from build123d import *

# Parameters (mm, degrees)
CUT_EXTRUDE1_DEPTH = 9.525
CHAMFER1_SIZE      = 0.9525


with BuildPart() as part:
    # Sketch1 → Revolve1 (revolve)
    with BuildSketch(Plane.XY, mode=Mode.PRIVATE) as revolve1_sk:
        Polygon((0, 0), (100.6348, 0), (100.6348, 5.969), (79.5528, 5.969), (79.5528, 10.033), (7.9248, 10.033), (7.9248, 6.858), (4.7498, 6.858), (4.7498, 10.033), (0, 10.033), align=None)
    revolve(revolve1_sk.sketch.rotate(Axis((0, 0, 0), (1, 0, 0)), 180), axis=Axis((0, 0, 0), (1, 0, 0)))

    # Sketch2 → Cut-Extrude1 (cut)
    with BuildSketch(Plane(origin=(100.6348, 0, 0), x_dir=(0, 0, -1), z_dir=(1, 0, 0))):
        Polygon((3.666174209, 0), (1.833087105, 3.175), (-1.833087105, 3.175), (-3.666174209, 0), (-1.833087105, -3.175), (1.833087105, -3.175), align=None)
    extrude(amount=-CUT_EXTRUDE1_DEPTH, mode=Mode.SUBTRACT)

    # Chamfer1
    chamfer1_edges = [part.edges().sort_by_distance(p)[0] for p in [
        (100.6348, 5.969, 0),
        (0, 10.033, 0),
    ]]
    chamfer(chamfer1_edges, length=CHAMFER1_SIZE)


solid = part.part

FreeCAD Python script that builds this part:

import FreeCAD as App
import Part
import Sketcher
Q = App.Units.Quantity


def edges_at(feature, points):
    """Names of the edges that pass closest to the given points."""
    edges = feature.Shape.Edges
    near = lambda p: min(range(len(edges)), key=lambda i: edges[i].distToShape(Part.Vertex(*p))[0])
    return sorted({f"Edge{near(p) + 1}" for p in points})


def add_polygon(sketch, points):
    """Adds a closed chain of lines whose ends are joined by coincident constraints."""
    first, n = sketch.GeometryCount, len(points)
    for a, b in zip(points, points[1:] + points[:1]):
        sketch.addGeometry(Part.LineSegment(App.Vector(*a, 0), App.Vector(*b, 0)), False)
    for i in range(n):
        sketch.addConstraint(Sketcher.Constraint("Coincident", first + i, 2, first + (i + 1) % n, 1))

doc = App.newDocument("Part")
body = doc.addObject("PartDesign::Body", "Body")

sketch1 = body.newObject("Sketcher::SketchObject", "Sketch")
sketch1.AttachmentSupport = (doc.getObject("XY_Plane"), [""])
sketch1.MapMode = "FlatFace"
add_polygon(sketch1, [(0, 0), (100.6348, 0), (100.6348, 5.969), (79.5528, 5.969), (79.5528, 10.033), (7.9248, 10.033), (7.9248, 6.858), (4.7498, 6.858), (4.7498, 10.033), (0, 10.033)])
sketch1.addConstraint([
    Sketcher.Constraint("Horizontal", 0),
    Sketcher.Constraint("Vertical", 1),
    Sketcher.Constraint("Horizontal", 2),
    Sketcher.Constraint("Vertical", 3),
    Sketcher.Constraint("Horizontal", 4),
    Sketcher.Constraint("Vertical", 5),
    Sketcher.Constraint("Horizontal", 6),
    Sketcher.Constraint("Vertical", 7),
    Sketcher.Constraint("Horizontal", 8),
    Sketcher.Constraint("Vertical", 9),
    Sketcher.Constraint("Coincident", 9, 2, -1, 1),
    Sketcher.Constraint("Horizontal", 4, 2, 7, 2),
    Sketcher.Constraint("Equal", 6, 5),
    Sketcher.Constraint("DistanceX", 2, 2, 2, 1, Q("0.83 in")),
    Sketcher.Constraint("DistanceX", 4, 2, 4, 1, Q("2.82 in")),
    Sketcher.Constraint("DistanceY", 3, 1, 3, 2, Q("0.16 in")),
    Sketcher.Constraint("DistanceX", 0, 1, 0, 2, Q("3.962 in")),
    Sketcher.Constraint("DistanceX", 6, 2, 6, 1, Q("0.125 in")),
    Sketcher.Constraint("DistanceY", 1, 1, 1, 2, Q("0.235 in")),
])
revolution = body.newObject("PartDesign::Revolution", "Revolution")
revolution.Profile = sketch1
revolution.ReferenceAxis = (sketch1, ["H_Axis"])
revolution.Angle = 360

sketch2 = body.newObject("Sketcher::SketchObject", "Sketch001")
sketch2.AttachmentSupport = (doc.getObject("YZ_Plane"), [""])
sketch2.MapMode = "FlatFace"
sketch2.AttachmentOffset = App.Placement(App.Vector(0, 0, 3.962 * 25.4), App.Rotation())
add_polygon(sketch2, [(0, -3.666174), (3.175, -1.833087), (3.175, 1.833087), (0, 3.666174), (-3.175, 1.833087), (-3.175, -1.833087)])
sketch2.addConstraint([
    Sketcher.Constraint("Vertical", 1),
    Sketcher.Constraint("Vertical", 4),
    Sketcher.Constraint("Symmetric", 0, 2, 3, 2, -1, 1),
    Sketcher.Constraint("Symmetric", 2, 2, 5, 2, -1, 1),
    Sketcher.Constraint("PointOnObject", 2, 2, -2),
    Sketcher.Constraint("Parallel", 2, 5),
    Sketcher.Constraint("Horizontal", 1, 2, 3, 2),
    Sketcher.Constraint("Angle", 0, Q("30 deg")),
    Sketcher.Constraint("DistanceX", 3, 2, 1, 2, Q("0.25 in")),
    Sketcher.Constraint("DistanceY", 1, 1, 1, 2, Q("3.666174 mm")),
])
pocket1 = body.newObject("PartDesign::Pocket", "Pocket")
pocket1.Profile = sketch2
pocket1.Length = Q("0.375 in")
doc.recompute()

chamfer = body.newObject("PartDesign::Chamfer", "Chamfer")
chamfer.Base = (pocket1, edges_at(pocket1, [(100.635, 5.969, 0), (0, 10.033, 0)]))
chamfer.Size = Q("0.0375 in")

doc.recompute()
